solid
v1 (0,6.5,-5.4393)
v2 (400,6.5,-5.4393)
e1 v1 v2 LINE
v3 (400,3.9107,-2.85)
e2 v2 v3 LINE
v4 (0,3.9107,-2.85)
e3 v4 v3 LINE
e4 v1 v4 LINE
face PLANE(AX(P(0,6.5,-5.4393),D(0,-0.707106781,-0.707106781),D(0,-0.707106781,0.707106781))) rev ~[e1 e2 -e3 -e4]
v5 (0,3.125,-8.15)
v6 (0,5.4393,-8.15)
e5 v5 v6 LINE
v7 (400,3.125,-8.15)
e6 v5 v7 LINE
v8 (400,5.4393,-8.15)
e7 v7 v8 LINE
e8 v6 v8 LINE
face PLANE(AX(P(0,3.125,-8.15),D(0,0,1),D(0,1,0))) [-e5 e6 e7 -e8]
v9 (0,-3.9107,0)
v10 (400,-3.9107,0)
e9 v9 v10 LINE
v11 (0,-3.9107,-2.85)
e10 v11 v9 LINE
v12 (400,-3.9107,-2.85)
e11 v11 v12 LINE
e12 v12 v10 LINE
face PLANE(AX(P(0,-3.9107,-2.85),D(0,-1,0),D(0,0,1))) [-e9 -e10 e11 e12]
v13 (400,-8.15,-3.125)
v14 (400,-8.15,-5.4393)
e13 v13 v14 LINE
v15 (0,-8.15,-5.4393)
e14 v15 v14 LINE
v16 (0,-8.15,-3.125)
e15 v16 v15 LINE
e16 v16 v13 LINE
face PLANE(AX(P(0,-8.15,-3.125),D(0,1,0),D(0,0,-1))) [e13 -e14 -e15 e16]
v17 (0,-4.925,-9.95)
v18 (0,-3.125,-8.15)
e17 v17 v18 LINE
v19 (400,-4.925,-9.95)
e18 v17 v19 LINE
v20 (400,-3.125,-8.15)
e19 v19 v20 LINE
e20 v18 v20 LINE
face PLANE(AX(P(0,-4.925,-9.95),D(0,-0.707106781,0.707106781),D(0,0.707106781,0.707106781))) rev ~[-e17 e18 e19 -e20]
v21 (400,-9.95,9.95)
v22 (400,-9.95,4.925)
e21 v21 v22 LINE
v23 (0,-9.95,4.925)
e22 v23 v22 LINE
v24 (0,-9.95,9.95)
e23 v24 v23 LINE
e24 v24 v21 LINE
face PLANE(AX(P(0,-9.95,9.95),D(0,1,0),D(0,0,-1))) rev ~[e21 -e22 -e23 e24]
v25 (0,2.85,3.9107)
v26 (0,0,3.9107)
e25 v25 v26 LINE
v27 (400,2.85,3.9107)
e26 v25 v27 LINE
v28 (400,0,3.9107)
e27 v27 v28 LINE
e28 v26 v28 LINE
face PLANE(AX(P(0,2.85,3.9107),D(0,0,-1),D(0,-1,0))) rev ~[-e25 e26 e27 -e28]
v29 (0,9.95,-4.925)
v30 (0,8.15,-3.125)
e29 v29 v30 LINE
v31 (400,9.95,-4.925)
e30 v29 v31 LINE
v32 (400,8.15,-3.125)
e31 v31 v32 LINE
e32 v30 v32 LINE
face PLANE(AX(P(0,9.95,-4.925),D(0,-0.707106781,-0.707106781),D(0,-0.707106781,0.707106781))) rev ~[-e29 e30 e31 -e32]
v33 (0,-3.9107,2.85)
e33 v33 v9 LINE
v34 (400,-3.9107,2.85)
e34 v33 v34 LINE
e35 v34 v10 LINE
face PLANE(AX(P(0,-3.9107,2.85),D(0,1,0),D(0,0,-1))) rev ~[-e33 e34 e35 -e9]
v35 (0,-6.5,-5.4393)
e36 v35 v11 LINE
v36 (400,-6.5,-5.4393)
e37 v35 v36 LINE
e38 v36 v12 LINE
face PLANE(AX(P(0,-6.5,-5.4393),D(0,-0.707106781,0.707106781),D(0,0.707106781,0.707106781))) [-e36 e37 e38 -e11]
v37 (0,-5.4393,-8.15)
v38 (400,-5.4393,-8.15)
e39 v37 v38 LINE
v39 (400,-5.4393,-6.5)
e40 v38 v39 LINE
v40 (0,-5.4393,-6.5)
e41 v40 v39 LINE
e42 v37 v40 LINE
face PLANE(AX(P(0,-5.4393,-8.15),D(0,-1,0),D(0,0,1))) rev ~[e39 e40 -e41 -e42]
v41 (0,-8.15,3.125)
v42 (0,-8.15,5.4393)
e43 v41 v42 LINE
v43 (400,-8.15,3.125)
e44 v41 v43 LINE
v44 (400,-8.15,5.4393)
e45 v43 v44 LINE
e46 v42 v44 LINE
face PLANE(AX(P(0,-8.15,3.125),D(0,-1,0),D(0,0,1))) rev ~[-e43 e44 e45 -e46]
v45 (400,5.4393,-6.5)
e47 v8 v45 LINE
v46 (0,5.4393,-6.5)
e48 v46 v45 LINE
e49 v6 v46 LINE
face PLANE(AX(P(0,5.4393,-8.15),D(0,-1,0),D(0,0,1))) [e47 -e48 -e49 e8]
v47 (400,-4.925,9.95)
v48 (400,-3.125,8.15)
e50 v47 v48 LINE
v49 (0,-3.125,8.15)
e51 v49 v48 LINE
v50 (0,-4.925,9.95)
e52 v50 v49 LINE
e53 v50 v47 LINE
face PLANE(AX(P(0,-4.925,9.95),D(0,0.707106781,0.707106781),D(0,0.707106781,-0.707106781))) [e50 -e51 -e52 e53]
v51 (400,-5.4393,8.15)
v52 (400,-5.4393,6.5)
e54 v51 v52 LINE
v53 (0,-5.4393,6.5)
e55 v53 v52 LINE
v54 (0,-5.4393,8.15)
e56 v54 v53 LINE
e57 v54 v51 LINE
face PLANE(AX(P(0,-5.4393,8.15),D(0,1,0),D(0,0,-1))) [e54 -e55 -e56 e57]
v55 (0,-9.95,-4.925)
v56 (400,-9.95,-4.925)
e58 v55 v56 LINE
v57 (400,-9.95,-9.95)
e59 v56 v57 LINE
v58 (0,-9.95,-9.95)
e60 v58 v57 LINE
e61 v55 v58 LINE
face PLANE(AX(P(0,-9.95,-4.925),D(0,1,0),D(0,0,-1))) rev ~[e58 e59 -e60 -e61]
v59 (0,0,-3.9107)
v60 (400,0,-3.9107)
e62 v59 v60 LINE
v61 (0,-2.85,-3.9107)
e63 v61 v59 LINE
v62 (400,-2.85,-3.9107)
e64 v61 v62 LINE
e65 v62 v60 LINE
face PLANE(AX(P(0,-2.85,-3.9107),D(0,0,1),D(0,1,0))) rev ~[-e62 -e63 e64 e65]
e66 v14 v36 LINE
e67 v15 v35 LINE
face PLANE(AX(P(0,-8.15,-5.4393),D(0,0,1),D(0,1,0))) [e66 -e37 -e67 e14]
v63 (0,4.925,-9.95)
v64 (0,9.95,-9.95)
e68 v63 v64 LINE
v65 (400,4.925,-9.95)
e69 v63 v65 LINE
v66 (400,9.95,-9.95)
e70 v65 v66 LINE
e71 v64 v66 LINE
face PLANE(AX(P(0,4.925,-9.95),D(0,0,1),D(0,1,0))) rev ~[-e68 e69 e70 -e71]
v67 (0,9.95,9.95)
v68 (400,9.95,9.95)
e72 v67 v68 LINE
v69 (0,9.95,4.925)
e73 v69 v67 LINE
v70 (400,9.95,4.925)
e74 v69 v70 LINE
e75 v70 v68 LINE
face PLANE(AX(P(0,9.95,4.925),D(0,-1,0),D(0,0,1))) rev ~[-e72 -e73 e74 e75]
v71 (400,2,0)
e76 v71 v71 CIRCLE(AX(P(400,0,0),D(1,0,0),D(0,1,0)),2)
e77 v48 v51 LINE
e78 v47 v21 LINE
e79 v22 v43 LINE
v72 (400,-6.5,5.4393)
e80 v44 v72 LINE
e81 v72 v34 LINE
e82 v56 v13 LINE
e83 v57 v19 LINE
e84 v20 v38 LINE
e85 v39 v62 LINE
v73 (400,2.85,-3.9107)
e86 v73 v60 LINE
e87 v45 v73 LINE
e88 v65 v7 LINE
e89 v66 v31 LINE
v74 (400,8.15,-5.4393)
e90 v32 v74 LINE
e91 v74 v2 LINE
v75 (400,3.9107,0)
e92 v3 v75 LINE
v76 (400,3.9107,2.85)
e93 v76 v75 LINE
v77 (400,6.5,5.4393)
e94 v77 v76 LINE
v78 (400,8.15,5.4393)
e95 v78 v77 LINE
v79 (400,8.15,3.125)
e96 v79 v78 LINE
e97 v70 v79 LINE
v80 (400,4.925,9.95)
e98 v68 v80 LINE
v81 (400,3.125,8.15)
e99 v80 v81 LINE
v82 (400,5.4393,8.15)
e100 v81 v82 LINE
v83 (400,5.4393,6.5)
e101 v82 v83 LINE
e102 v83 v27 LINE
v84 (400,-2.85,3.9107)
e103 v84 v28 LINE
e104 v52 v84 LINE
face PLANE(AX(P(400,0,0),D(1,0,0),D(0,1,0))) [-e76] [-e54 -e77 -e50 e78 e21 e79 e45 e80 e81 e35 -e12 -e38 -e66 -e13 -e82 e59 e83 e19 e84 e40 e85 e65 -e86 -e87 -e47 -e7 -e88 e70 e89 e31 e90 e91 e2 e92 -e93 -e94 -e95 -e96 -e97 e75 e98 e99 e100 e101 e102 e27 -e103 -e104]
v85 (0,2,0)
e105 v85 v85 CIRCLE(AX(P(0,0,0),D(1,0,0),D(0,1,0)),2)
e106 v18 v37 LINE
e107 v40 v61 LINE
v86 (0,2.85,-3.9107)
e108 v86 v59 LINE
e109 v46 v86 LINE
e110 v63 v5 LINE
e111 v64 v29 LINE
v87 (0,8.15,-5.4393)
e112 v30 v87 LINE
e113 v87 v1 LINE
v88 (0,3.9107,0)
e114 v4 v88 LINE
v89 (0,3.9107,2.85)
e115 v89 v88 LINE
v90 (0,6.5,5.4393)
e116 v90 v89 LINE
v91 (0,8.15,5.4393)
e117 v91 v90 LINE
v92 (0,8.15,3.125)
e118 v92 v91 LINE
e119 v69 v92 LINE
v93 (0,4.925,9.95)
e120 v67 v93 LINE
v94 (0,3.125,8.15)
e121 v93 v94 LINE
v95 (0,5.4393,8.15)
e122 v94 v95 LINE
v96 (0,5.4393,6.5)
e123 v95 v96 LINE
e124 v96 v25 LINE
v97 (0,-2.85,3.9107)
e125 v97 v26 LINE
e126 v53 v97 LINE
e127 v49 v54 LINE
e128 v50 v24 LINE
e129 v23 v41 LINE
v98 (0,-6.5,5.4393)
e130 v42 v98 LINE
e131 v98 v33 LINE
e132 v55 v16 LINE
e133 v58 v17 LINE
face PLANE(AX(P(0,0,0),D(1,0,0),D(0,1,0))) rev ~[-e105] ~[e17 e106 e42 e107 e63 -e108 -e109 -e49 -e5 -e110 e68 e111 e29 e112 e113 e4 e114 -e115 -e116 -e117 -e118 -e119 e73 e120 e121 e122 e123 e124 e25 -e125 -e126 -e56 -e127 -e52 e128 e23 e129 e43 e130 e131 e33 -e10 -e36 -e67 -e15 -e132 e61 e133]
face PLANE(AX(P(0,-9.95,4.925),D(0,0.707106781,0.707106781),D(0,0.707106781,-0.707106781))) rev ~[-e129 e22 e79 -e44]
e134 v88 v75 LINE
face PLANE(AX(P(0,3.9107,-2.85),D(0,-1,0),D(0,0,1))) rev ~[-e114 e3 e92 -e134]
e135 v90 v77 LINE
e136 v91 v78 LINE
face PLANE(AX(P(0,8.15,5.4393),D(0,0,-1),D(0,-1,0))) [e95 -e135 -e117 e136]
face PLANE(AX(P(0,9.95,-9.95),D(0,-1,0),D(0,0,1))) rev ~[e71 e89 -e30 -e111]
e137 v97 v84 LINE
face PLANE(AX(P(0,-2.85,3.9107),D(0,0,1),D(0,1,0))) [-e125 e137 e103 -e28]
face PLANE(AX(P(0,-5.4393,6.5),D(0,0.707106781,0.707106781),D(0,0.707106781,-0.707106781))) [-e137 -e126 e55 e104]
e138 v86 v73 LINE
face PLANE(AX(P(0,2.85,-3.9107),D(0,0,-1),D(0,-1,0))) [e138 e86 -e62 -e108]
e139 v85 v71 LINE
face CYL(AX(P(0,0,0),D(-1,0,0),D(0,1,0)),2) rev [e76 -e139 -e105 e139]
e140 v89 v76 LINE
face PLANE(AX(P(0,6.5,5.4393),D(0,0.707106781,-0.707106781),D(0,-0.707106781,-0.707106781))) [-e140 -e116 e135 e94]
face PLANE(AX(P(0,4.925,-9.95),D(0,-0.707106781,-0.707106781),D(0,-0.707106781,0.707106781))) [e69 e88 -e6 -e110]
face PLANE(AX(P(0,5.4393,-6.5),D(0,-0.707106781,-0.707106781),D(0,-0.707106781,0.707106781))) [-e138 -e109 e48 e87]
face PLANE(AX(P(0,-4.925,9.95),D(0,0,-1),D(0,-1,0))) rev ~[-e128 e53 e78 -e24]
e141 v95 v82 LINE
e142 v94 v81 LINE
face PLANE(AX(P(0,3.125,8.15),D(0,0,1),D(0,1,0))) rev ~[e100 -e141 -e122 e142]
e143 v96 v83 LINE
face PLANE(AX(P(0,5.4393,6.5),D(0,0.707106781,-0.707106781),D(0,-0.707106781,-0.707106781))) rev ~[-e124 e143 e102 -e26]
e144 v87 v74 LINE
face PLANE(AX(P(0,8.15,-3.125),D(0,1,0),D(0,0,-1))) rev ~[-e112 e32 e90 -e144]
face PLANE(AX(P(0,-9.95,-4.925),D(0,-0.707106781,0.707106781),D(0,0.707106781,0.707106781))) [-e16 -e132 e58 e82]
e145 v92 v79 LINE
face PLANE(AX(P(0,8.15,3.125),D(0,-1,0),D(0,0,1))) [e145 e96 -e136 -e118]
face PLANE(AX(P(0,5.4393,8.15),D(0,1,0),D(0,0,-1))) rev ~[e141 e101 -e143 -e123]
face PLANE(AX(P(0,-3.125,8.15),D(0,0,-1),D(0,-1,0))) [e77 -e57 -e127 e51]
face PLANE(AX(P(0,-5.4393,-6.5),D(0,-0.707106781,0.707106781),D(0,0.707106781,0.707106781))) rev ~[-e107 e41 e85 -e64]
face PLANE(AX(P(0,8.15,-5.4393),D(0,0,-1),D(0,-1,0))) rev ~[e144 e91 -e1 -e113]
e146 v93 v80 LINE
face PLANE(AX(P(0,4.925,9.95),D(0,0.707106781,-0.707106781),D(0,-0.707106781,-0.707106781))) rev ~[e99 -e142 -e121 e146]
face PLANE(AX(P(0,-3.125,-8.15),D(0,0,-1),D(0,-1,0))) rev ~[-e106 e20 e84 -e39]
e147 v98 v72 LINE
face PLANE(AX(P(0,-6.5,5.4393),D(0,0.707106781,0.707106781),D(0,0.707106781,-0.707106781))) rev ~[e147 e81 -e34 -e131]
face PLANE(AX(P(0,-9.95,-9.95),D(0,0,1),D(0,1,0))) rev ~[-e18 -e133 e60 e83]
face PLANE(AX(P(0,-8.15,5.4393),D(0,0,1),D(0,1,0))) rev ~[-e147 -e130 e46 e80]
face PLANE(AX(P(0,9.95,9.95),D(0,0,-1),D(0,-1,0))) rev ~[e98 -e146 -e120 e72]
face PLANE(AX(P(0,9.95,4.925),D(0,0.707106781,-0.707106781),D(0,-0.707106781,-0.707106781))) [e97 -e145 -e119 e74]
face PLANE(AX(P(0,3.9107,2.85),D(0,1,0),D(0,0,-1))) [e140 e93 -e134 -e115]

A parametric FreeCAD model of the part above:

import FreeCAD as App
import Part
import Sketcher
Q = App.Units.Quantity

doc = App.newDocument("Part")
body = doc.addObject("PartDesign::Body", "Body")

# Sketch on YZ plane
sketch1 = body.newObject("Sketcher::SketchObject", "Sketch")
sketch1.AttachmentSupport = (doc.getObject("YZ_Plane"), [""])
sketch1.MapMode = "FlatFace"
sketch1.addGeometry(Part.LineSegment(App.Vector(8.2, 3.1, 0), App.Vector(9.9, 4.9, 0)), False)
sketch1.addGeometry(Part.LineSegment(App.Vector(9.9, 4.9, 0), App.Vector(9.9, 9.9, 0)), False)
sketch1.addGeometry(Part.LineSegment(App.Vector(9.9, 9.9, 0), App.Vector(4.9, 9.9, 0)), False)
sketch1.addGeometry(Part.LineSegment(App.Vector(4.9, 9.9, 0), App.Vector(3.1, 8.2, 0)), False)
sketch1.addGeometry(Part.LineSegment(App.Vector(3.1, 8.2, 0), App.Vector(5.4, 8.2, 0)), False)
sketch1.addGeometry(Part.LineSegment(App.Vector(5.4, 8.2, 0), App.Vector(5.4, 6.5, 0)), False)
sketch1.addGeometry(Part.LineSegment(App.Vector(5.4, 6.5, 0), App.Vector(2.9, 3.9, 0)), False)
sketch1.addGeometry(Part.LineSegment(App.Vector(2.9, 3.9, 0), App.Vector(-2.9, 3.9, 0)), False)
sketch1.addGeometry(Part.LineSegment(App.Vector(-2.9, 3.9, 0), App.Vector(-5.4, 6.5, 0)), False)
sketch1.addGeometry(Part.LineSegment(App.Vector(-5.4, 6.5, 0), App.Vector(-5.4, 8.2, 0)), False)
sketch1.addGeometry(Part.LineSegment(App.Vector(-5.4, 8.2, 0), App.Vector(-3.1, 8.2, 0)), False)
sketch1.addGeometry(Part.LineSegment(App.Vector(-3.1, 8.2, 0), App.Vector(-4.9, 9.9, 0)), False)
sketch1.addGeometry(Part.LineSegment(App.Vector(-4.9, 9.9, 0), App.Vector(-9.9, 9.9, 0)), False)
sketch1.addGeometry(Part.LineSegment(App.Vector(-9.9, 9.9, 0), App.Vector(-9.9, 4.9, 0)), False)
sketch1.addGeometry(Part.LineSegment(App.Vector(-9.9, 4.9, 0), App.Vector(-8.2, 3.1, 0)), False)
sketch1.addGeometry(Part.LineSegment(App.Vector(-8.2, 3.1, 0), App.Vector(-8.2, 5.4, 0)), False)
sketch1.addGeometry(Part.LineSegment(App.Vector(-8.2, 5.4, 0), App.Vector(-6.5, 5.4, 0)), False)
sketch1.addGeometry(Part.LineSegment(App.Vector(-6.5, 5.4, 0), App.Vector(-3.9, 2.9, 0)), False)
sketch1.addGeometry(Part.LineSegment(App.Vector(-3.9, 2.9, 0), App.Vector(-3.9, -2.9, 0)), False)
sketch1.addGeometry(Part.LineSegment(App.Vector(-3.9, -2.9, 0), App.Vector(-6.5, -5.4, 0)), False)
sketch1.addGeometry(Part.LineSegment(App.Vector(-6.5, -5.4, 0), App.Vector(-8.2, -5.4, 0)), False)
sketch1.addGeometry(Part.LineSegment(App.Vector(-8.2, -5.4, 0), App.Vector(-8.2, -3.1, 0)), False)
sketch1.addGeometry(Part.LineSegment(App.Vector(-8.2, -3.1, 0), App.Vector(-9.9, -4.9, 0)), False)
sketch1.addGeometry(Part.LineSegment(App.Vector(-9.9, -4.9, 0), App.Vector(-9.9, -9.9, 0)), False)
sketch1.addGeometry(Part.LineSegment(App.Vector(-9.9, -9.9, 0), App.Vector(-4.9, -9.9, 0)), False)
sketch1.addGeometry(Part.LineSegment(App.Vector(-4.9, -9.9, 0), App.Vector(-3.1, -8.2, 0)), False)
sketch1.addGeometry(Part.LineSegment(App.Vector(-3.1, -8.2, 0), App.Vector(-5.4, -8.2, 0)), False)
sketch1.addGeometry(Part.LineSegment(App.Vector(-5.4, -8.2, 0), App.Vector(-5.4, -6.5, 0)), False)
sketch1.addGeometry(Part.LineSegment(App.Vector(-5.4, -6.5, 0), App.Vector(-2.9, -3.9, 0)), False)
sketch1.addGeometry(Part.LineSegment(App.Vector(-2.9, -3.9, 0), App.Vector(2.9, -3.9, 0)), False)
sketch1.addGeometry(Part.LineSegment(App.Vector(2.9, -3.9, 0), App.Vector(5.4, -6.5, 0)), False)
sketch1.addGeometry(Part.LineSegment(App.Vector(5.4, -6.5, 0), App.Vector(5.4, -8.2, 0)), False)
sketch1.addGeometry(Part.LineSegment(App.Vector(5.4, -8.2, 0), App.Vector(3.1, -8.2, 0)), False)
sketch1.addGeometry(Part.LineSegment(App.Vector(3.1, -8.2, 0), App.Vector(4.9, -9.9, 0)), False)
sketch1.addGeometry(Part.LineSegment(App.Vector(4.9, -9.9, 0), App.Vector(9.9, -9.9, 0)), False)
sketch1.addGeometry(Part.LineSegment(App.Vector(9.9, -9.9, 0), App.Vector(9.9, -4.9, 0)), False)
sketch1.addGeometry(Part.LineSegment(App.Vector(9.9, -4.9, 0), App.Vector(8.2, -3.1, 0)), False)
sketch1.addGeometry(Part.LineSegment(App.Vector(8.2, -3.1, 0), App.Vector(8.2, -5.4, 0)), False)
sketch1.addGeometry(Part.LineSegment(App.Vector(8.2, -5.4, 0), App.Vector(6.5, -5.4, 0)), False)
sketch1.addGeometry(Part.LineSegment(App.Vector(6.5, -5.4, 0), App.Vector(3.9, -2.9, 0)), False)
sketch1.addGeometry(Part.LineSegment(App.Vector(3.9, -2.9, 0), App.Vector(3.9, 2.9, 0)), False)
sketch1.addGeometry(Part.LineSegment(App.Vector(3.9, 2.9, 0), App.Vector(6.5, 5.4, 0)), False)
sketch1.addGeometry(Part.LineSegment(App.Vector(6.5, 5.4, 0), App.Vector(8.2, 5.4, 0)), False)
sketch1.addGeometry(Part.LineSegment(App.Vector(8.2, 5.4, 0), App.Vector(8.2, 3.1, 0)), False)
sketch1.addGeometry(Part.Circle(App.Vector(0, 0, 0), App.Vector(0, 0, 1), 2), False)
sketch1.addConstraint(Sketcher.Constraint("Coincident", 0, 2, 1, 1))
sketch1.addConstraint(Sketcher.Constraint("Coincident", 1, 2, 2, 1))
sketch1.addConstraint(Sketcher.Constraint("Coincident", 2, 2, 3, 1))
sketch1.addConstraint(Sketcher.Constraint("Coincident", 3, 2, 4, 1))
sketch1.addConstraint(Sketcher.Constraint("Coincident", 4, 2, 5, 1))
sketch1.addConstraint(Sketcher.Constraint("Coincident", 5, 2, 6, 1))
sketch1.addConstraint(Sketcher.Constraint("Coincident", 6, 2, 7, 1))
sketch1.addConstraint(Sketcher.Constraint("Coincident", 7, 2, 8, 1))
sketch1.addConstraint(Sketcher.Constraint("Coincident", 8, 2, 9, 1))
sketch1.addConstraint(Sketcher.Constraint("Coincident", 9, 2, 10, 1))
sketch1.addConstraint(Sketcher.Constraint("Coincident", 10, 2, 11, 1))
sketch1.addConstraint(Sketcher.Constraint("Coincident", 11, 2, 12, 1))
sketch1.addConstraint(Sketcher.Constraint("Coincident", 12, 2, 13, 1))
sketch1.addConstraint(Sketcher.Constraint("Coincident", 13, 2, 14, 1))
sketch1.addConstraint(Sketcher.Constraint("Coincident", 14, 2, 15, 1))
sketch1.addConstraint(Sketcher.Constraint("Coincident", 15, 2, 16, 1))
sketch1.addConstraint(Sketcher.Constraint("Coincident", 16, 2, 17, 1))
sketch1.addConstraint(Sketcher.Constraint("Coincident", 17, 2, 18, 1))
sketch1.addConstraint(Sketcher.Constraint("Coincident", 18, 2, 19, 1))
sketch1.addConstraint(Sketcher.Constraint("Coincident", 19, 2, 20, 1))
sketch1.addConstraint(Sketcher.Constraint("Coincident", 20, 2, 21, 1))
sketch1.addConstraint(Sketcher.Constraint("Coincident", 21, 2, 22, 1))
sketch1.addConstraint(Sketcher.Constraint("Coincident", 22, 2, 23, 1))
sketch1.addConstraint(Sketcher.Constraint("Coincident", 23, 2, 24, 1))
sketch1.addConstraint(Sketcher.Constraint("Coincident", 24, 2, 25, 1))
sketch1.addConstraint(Sketcher.Constraint("Coincident", 25, 2, 26, 1))
sketch1.addConstraint(Sketcher.Constraint("Coincident", 26, 2, 27, 1))
sketch1.addConstraint(Sketcher.Constraint("Coincident", 27, 2, 28, 1))
sketch1.addConstraint(Sketcher.Constraint("Coincident", 28, 2, 29, 1))
sketch1.addConstraint(Sketcher.Constraint("Coincident", 29, 2, 30, 1))
sketch1.addConstraint(Sketcher.Constraint("Coincident", 30, 2, 31, 1))
sketch1.addConstraint(Sketcher.Constraint("Coincident", 31, 2, 32, 1))
sketch1.addConstraint(Sketcher.Constraint("Coincident", 32, 2, 33, 1))
sketch1.addConstraint(Sketcher.Constraint("Coincident", 33, 2, 34, 1))
sketch1.addConstraint(Sketcher.Constraint("Coincident", 34, 2, 35, 1))
sketch1.addConstraint(Sketcher.Constraint("Coincident", 35, 2, 36, 1))
sketch1.addConstraint(Sketcher.Constraint("Coincident", 36, 2, 37, 1))
sketch1.addConstraint(Sketcher.Constraint("Coincident", 37, 2, 38, 1))
sketch1.addConstraint(Sketcher.Constraint("Coincident", 38, 2, 39, 1))
sketch1.addConstraint(Sketcher.Constraint("Coincident", 39, 2, 40, 1))
sketch1.addConstraint(Sketcher.Constraint("Coincident", 40, 2, 41, 1))
sketch1.addConstraint(Sketcher.Constraint("Coincident", 41, 2, 42, 1))
sketch1.addConstraint(Sketcher.Constraint("Coincident", 42, 2, 43, 1))
sketch1.addConstraint(Sketcher.Constraint("Coincident", 43, 2, 0, 1))
sketch1.addConstraint(Sketcher.Constraint("Vertical", 1))
sketch1.addConstraint(Sketcher.Constraint("Horizontal", 2))
sketch1.addConstraint(Sketcher.Constraint("Horizontal", 4))
sketch1.addConstraint(Sketcher.Constraint("Vertical", 5))
sketch1.addConstraint(Sketcher.Constraint("Horizontal", 7))
sketch1.addConstraint(Sketcher.Constraint("Vertical", 9))
sketch1.addConstraint(Sketcher.Constraint("Horizontal", 10))
sketch1.addConstraint(Sketcher.Constraint("Horizontal", 12))
sketch1.addConstraint(Sketcher.Constraint("Vertical", 13))
sketch1.addConstraint(Sketcher.Constraint("Vertical", 15))
sketch1.addConstraint(Sketcher.Constraint("Horizontal", 16))
sketch1.addConstraint(Sketcher.Constraint("Vertical", 18))
sketch1.addConstraint(Sketcher.Constraint("Horizontal", 20))
sketch1.addConstraint(Sketcher.Constraint("Vertical", 21))
sketch1.addConstraint(Sketcher.Constraint("Vertical", 23))
sketch1.addConstraint(Sketcher.Constraint("Horizontal", 24))
sketch1.addConstraint(Sketcher.Constraint("Horizontal", 26))
sketch1.addConstraint(Sketcher.Constraint("Vertical", 27))
sketch1.addConstraint(Sketcher.Constraint("Horizontal", 29))
sketch1.addConstraint(Sketcher.Constraint("Vertical", 31))
sketch1.addConstraint(Sketcher.Constraint("Horizontal", 32))
sketch1.addConstraint(Sketcher.Constraint("Horizontal", 34))
sketch1.addConstraint(Sketcher.Constraint("Vertical", 35))
sketch1.addConstraint(Sketcher.Constraint("Vertical", 37))
sketch1.addConstraint(Sketcher.Constraint("Horizontal", 38))
sketch1.addConstraint(Sketcher.Constraint("Vertical", 40))
sketch1.addConstraint(Sketcher.Constraint("Horizontal", 42))
sketch1.addConstraint(Sketcher.Constraint("Vertical", 43))
sketch1.addConstraint(Sketcher.Constraint("Coincident", 44, 3, -1, 1))
sketch1.addConstraint(Sketcher.Constraint("Symmetric", 0, 2, 22, 2, -1, 1))
sketch1.addConstraint(Sketcher.Constraint("Symmetric", 2, 2, 24, 2, -1, 1))
sketch1.addConstraint(Sketcher.Constraint("Symmetric", 3, 2, 25, 2, -1, 1))
sketch1.addConstraint(Sketcher.Constraint("Symmetric", 5, 2, 27, 2, -1, 1))
sketch1.addConstraint(Sketcher.Constraint("Symmetric", 6, 2, 28, 2, -1, 1))
sketch1.addConstraint(Sketcher.Constraint("Symmetric", 8, 2, 30, 2, -1, 1))
sketch1.addConstraint(Sketcher.Constraint("Symmetric", 10, 2, 32, 2, -1, 1))
sketch1.addConstraint(Sketcher.Constraint("Symmetric", 11, 2, 33, 2, -1, 1))
sketch1.addConstraint(Sketcher.Constraint("Symmetric", 13, 2, 35, 2, -1, 1))
sketch1.addConstraint(Sketcher.Constraint("Symmetric", 14, 2, 36, 2, -1, 1))
sketch1.addConstraint(Sketcher.Constraint("Symmetric", 16, 2, 38, 2, -1, 1))
sketch1.addConstraint(Sketcher.Constraint("Symmetric", 17, 2, 39, 2, -1, 1))
sketch1.addConstraint(Sketcher.Constraint("Symmetric", 19, 2, 41, 2, -1, 1))
sketch1.addConstraint(Sketcher.Constraint("Symmetric", 21, 2, 43, 2, -1, 1))
sketch1.addConstraint(Sketcher.Constraint("Symmetric", 5, 2, 8, 2, -2))
sketch1.addConstraint(Sketcher.Constraint("Symmetric", 3, 2, 10, 2, -2))
sketch1.addConstraint(Sketcher.Constraint("Symmetric", 2, 2, 11, 2, -2))
sketch1.addConstraint(Sketcher.Constraint("Symmetric", 0, 2, 13, 2, -2))
sketch1.addConstraint(Sketcher.Constraint("Symmetric", 21, 2, 36, 2, -2))
sketch1.addConstraint(Sketcher.Constraint("Symmetric", 19, 2, 38, 2, -2))
sketch1.addConstraint(Sketcher.Constraint("Parallel", 0, 3))
sketch1.addConstraint(Sketcher.Constraint("Parallel", 3, 6))
sketch1.addConstraint(Sketcher.Constraint("Perpendicular", 6, 8))
sketch1.addConstraint(Sketcher.Constraint("Parallel", 8, 11))
sketch1.addConstraint(Sketcher.Constraint("Parallel", 14, 17))
sketch1.addConstraint(Sketcher.Constraint("Perpendicular", 17, 19))
sketch1.addConstraint(Sketcher.Constraint("Perpendicular", 28, 30))
sketch1.addConstraint(Sketcher.Constraint("Perpendicular", 39, 41))
sketch1.addConstraint(Sketcher.Constraint("Equal", 34, 1))
sketch1.addConstraint(Sketcher.Constraint("Equal", 42, 5))
sketch1.addConstraint(Sketcher.Constraint("Equal", 32, 15))
sketch1.addConstraint(Sketcher.Constraint("Equal", 29, 18))
sketch1.addConstraint(Sketcher.Constraint("Equal", 0, 3))
sketch1.addConstraint(Sketcher.Constraint("Equal", 8, 17))
sketch1.addConstraint(Sketcher.Constraint("Diameter", 44, Q("4 mm")))
sketch1.addConstraint(Sketcher.Constraint("DistanceX", 7, 2, 7, 1, Q("5.7 mm")))
sketch1.addConstraint(Sketcher.Constraint("DistanceX", 16, 1, 16, 2, Q("1.65 mm")))
sketch1.addConstraint(Sketcher.Constraint("DistanceX", 3, 2, 2, 2, Q("1.8 mm")))
sketch1.addConstraint(Sketcher.Constraint("DistanceX", 10, 2, 3, 2, Q("6.25 mm")))
sketch1.addConstraint(Sketcher.Constraint("DistanceY", -1, 1, 5, 2, Q("6.5 mm")))
sketch1.addConstraint(Sketcher.Constraint("DistanceX", 4, 1, 4, 2, Q("2.3143 mm")))
pad1 = body.newObject("PartDesign::Pad", "Pad")
pad1.Profile = sketch1
pad1.Length = 400

doc.recompute()
